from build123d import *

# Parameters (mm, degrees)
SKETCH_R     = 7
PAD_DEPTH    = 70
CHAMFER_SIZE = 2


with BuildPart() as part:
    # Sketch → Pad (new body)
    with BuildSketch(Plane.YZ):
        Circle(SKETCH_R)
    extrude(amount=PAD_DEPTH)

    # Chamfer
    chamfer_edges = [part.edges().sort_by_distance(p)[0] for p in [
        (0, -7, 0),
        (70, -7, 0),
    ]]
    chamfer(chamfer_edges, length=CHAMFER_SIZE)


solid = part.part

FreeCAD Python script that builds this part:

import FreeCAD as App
import Part
import Sketcher
Q = App.Units.Quantity


def edges_at(feature, points):
    """Names of the edges that pass closest to the given points."""
    edges = feature.Shape.Edges
    near = lambda p: min(range(len(edges)), key=lambda i: edges[i].distToShape(Part.Vertex(*p))[0])
    return sorted({f"Edge{near(p) + 1}" for p in points})

doc = App.newDocument("Part")
body = doc.addObject("PartDesign::Body", "Body")

sketch1 = doc.addObject("Sketcher::SketchObject", "Sketch")
body.addObject(sketch1)
sketch1.AttachmentSupport = (doc.YZ_Plane, [""])
sketch1.MapMode = "FlatFace"
sketch1.addGeometry(Part.Circle(App.Vector(0, 0, 0), App.Vector(0, 0, 1), 7), False)
sketch1.addConstraint(Sketcher.Constraint("Coincident", 0, 3, -1, 1))
sketch1.addConstraint(Sketcher.Constraint("Diameter", 0, Q("14 mm")))
pad1 = doc.addObject("PartDesign::Pad", "Pad")
body.addObject(pad1)
pad1.Profile = sketch1
pad1.Length = 70
doc.recompute()

chamfer = doc.addObject("PartDesign::Chamfer", "Chamfer")
body.addObject(chamfer)
chamfer.Base = (pad1, edges_at(pad1, [(0, -7, 0), (70, -7, 0)]))
chamfer.Size = 2

doc.recompute()
